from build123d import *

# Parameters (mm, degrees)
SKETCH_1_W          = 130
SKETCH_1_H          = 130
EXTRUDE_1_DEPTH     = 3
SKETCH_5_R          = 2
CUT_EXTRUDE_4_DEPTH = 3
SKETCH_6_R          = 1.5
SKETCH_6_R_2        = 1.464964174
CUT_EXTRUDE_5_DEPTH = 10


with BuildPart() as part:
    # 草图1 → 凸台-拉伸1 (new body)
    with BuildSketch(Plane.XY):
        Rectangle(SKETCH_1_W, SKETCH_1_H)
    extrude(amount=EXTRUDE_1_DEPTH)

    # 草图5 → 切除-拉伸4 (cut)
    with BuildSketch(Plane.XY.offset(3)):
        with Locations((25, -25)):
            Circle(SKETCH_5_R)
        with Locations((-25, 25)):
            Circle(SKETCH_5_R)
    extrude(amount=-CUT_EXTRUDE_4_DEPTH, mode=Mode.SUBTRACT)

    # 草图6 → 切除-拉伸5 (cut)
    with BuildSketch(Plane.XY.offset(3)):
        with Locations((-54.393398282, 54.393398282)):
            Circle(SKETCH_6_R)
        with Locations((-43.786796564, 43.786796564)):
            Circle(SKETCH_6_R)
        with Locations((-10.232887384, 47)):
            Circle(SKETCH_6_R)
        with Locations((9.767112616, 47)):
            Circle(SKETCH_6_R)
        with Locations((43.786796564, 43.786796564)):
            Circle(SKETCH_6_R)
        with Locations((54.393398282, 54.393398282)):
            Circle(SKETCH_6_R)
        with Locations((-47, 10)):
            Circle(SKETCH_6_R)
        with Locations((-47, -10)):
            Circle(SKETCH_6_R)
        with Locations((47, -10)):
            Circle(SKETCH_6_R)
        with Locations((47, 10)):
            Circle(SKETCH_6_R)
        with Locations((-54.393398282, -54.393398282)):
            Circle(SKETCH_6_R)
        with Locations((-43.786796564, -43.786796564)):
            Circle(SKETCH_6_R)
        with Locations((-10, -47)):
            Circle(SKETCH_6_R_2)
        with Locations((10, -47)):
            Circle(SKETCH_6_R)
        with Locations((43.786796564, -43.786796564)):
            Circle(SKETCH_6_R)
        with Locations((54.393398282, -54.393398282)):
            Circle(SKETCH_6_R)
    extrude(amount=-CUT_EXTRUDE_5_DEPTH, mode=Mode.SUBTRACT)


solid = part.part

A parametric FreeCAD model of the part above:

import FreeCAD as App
import Part
import Sketcher

doc = App.newDocument("Part")
params = doc.addObject("Spreadsheet::Sheet", "Params")
for row, (alias, value) in enumerate([
    ("sketch1_width", "130 mm"),
    ("pad1_length", "3 mm"),
    ("sketch2_diameter", "4 mm"),
    ("pocket1_length", "3 mm"),
    ("sketch3_diameter", "3 mm"),
    ("pocket2_length", "10 mm"),
], start=1):
    params.set(f"A{row}", alias)
    params.set(f"B{row}", "=" + value)
    params.setAlias(f"B{row}", alias)

body = doc.addObject("PartDesign::Body", "Body")

# Sketch on XY plane
sketch1 = body.newObject("Sketcher::SketchObject", "Sketch")
sketch1.AttachmentSupport = (doc.getObject("XY_Plane"), [""])
sketch1.MapMode = "FlatFace"
sketch1.addGeometry([
    Part.LineSegment(App.Vector(-65, 65, 0), App.Vector(-65, -65, 0)),
    Part.LineSegment(App.Vector(-65, -65, 0), App.Vector(65, -65, 0)),
    Part.LineSegment(App.Vector(65, -65, 0), App.Vector(65, 65, 0)),
    Part.LineSegment(App.Vector(65, 65, 0), App.Vector(-65, 65, 0)),
], False)
sketch1.addConstraint([
    Sketcher.Constraint("Coincident", 0, 2, 1, 1),
    Sketcher.Constraint("Coincident", 1, 2, 2, 1),
    Sketcher.Constraint("Coincident", 2, 2, 3, 1),
    Sketcher.Constraint("Coincident", 3, 2, 0, 1),
    Sketcher.Constraint("Vertical", 0),
    Sketcher.Constraint("Horizontal", 1),
    Sketcher.Constraint("Vertical", 2),
    Sketcher.Constraint("Horizontal", 3),
    Sketcher.Constraint("Symmetric", 0, 2, 2, 2, -1, 1),
    Sketcher.Constraint("Equal", 3, 0),
    Sketcher.Constraint("DistanceX", 1, 1, 1, 2, 130.0),
])
sketch1.setExpression("Constraints[10]", "Params.sketch1_width")
pad1 = body.newObject("PartDesign::Pad", "Pad")
pad1.Profile = sketch1
pad1.setExpression("Length", "Params.pad1_length")

# Sketch on XY plane
sketch2 = body.newObject("Sketcher::SketchObject", "Sketch001")
sketch2.AttachmentSupport = (doc.getObject("XY_Plane"), [""])
sketch2.MapMode = "FlatFace"
sketch2.AttachmentOffset = App.Placement(App.Vector(0, 0, 3), App.Rotation())
sketch2.addGeometry([
    Part.Circle(App.Vector(25, -25, 0), App.Vector(0, 0, 1), 2),
    Part.Circle(App.Vector(-25, 25, 0), App.Vector(0, 0, 1), 2),
], False)
sketch2.addConstraint([
    Sketcher.Constraint("Equal", 0, 1),
    Sketcher.Constraint("Symmetric", 0, 3, 1, 3, -1, 1),
    Sketcher.Constraint("Diameter", 0, 4.0),
    Sketcher.Constraint("DistanceX", -1, 1, 0, 3, 25.0),
    Sketcher.Constraint("DistanceY", 0, 3, -1, 1, 25.0),
])
sketch2.setExpression("Constraints[2]", "Params.sketch2_diameter")
pocket1 = body.newObject("PartDesign::Pocket", "Pocket")
pocket1.Profile = sketch2
pocket1.setExpression("Length", "Params.pocket1_length")

# Sketch on XY plane
sketch3 = body.newObject("Sketcher::SketchObject", "Sketch002")
sketch3.AttachmentSupport = (doc.getObject("XY_Plane"), [""])
sketch3.MapMode = "FlatFace"
sketch3.AttachmentOffset = App.Placement(App.Vector(0, 0, 3), App.Rotation())
sketch3.addGeometry([
    Part.Circle(App.Vector(-54.4, 54.4, 0), App.Vector(0, 0, 1), 1.5),  # 0
    Part.Circle(App.Vector(-43.8, 43.8, 0), App.Vector(0, 0, 1), 1.5),  # 1
    Part.Circle(App.Vector(-10.2, 47, 0), App.Vector(0, 0, 1), 1.5),  # 2
    Part.Circle(App.Vector(9.8, 47, 0), App.Vector(0, 0, 1), 1.5),  # 3
    Part.Circle(App.Vector(43.8, 43.8, 0), App.Vector(0, 0, 1), 1.5),  # 4
    Part.Circle(App.Vector(54.4, 54.4, 0), App.Vector(0, 0, 1), 1.5),  # 5
    Part.Circle(App.Vector(-47, 10, 0), App.Vector(0, 0, 1), 1.5),  # 6
    Part.Circle(App.Vector(-47, -10, 0), App.Vector(0, 0, 1), 1.5),  # 7
    Part.Circle(App.Vector(47, -10, 0), App.Vector(0, 0, 1), 1.5),  # 8
    Part.Circle(App.Vector(47, 10, 0), App.Vector(0, 0, 1), 1.5),  # 9
    Part.Circle(App.Vector(-54.4, -54.4, 0), App.Vector(0, 0, 1), 1.5),  # 10
    Part.Circle(App.Vector(-43.8, -43.8, 0), App.Vector(0, 0, 1), 1.5),  # 11
    Part.Circle(App.Vector(-10, -47, 0), App.Vector(0, 0, 1), 1.5),  # 12
    Part.Circle(App.Vector(10, -47, 0), App.Vector(0, 0, 1), 1.5),  # 13
    Part.Circle(App.Vector(43.8, -43.8, 0), App.Vector(0, 0, 1), 1.5),  # 14
    Part.Circle(App.Vector(54.4, -54.4, 0), App.Vector(0, 0, 1), 1.5),  # 15
], False)
sketch3.addConstraint([
    Sketcher.Constraint("Equal", 0, 1),
    Sketcher.Constraint("Equal", 1, 2),
    Sketcher.Constraint("Equal", 2, 3),
    Sketcher.Constraint("Equal", 3, 4),
    Sketcher.Constraint("Equal", 4, 5),
    Sketcher.Constraint("Equal", 5, 6),
    Sketcher.Constraint("Equal", 6, 7),
    Sketcher.Constraint("Equal", 7, 8),
    Sketcher.Constraint("Equal", 8, 9),
    Sketcher.Constraint("Equal", 9, 10),
    Sketcher.Constraint("Equal", 10, 11),
    Sketcher.Constraint("Equal", 11, 13),
    Sketcher.Constraint("Equal", 13, 14),
    Sketcher.Constraint("Equal", 14, 15),
    Sketcher.Constraint("Symmetric", 6, 3, 8, 3, -1, 1),
    Sketcher.Constraint("Symmetric", 7, 3, 9, 3, -1, 1),
    Sketcher.Constraint("Symmetric", 5, 3, 10, 3, -1, 1),
    Sketcher.Constraint("Symmetric", 4, 3, 11, 3, -1, 1),
    Sketcher.Constraint("Symmetric", 1, 3, 14, 3, -1, 1),
    Sketcher.Constraint("Symmetric", 0, 3, 15, 3, -1, 1),
    Sketcher.Constraint("Symmetric", 1, 3, 4, 3, -2),
    Sketcher.Constraint("Symmetric", 0, 3, 5, 3, -2),
    Sketcher.Constraint("Symmetric", 7, 3, 8, 3, -2),
    Sketcher.Constraint("Symmetric", 12, 3, 13, 3, -2),
    Sketcher.Constraint("Horizontal", 2, 3, 3, 3),
    Sketcher.Constraint("Diameter", 0, 3.0),
    Sketcher.Constraint("DistanceY", -1, 1, 2, 3, 47.0),
    Sketcher.Constraint("DistanceX", 6, 3, -1, 1, 47.0),
    Sketcher.Constraint("DistanceY", -1, 1, 6, 3, 10.0),
    Sketcher.Constraint("DistanceX", 12, 3, -1, 1, 10.0),
    Sketcher.Constraint("DistanceY", 12, 3, -1, 1, 47.0),
    Sketcher.Constraint("DistanceX", 2, 3, 3, 3, 20.0),
    Sketcher.Constraint("Diameter", 12, 2.929928),
    Sketcher.Constraint("DistanceX", 0, 3, -1, 1, 54.393398),
    Sketcher.Constraint("DistanceY", -1, 1, 0, 3, 54.393398),
    Sketcher.Constraint("DistanceX", 0, 3, 1, 3, 10.606602),
    Sketcher.Constraint("DistanceY", 1, 3, 0, 3, 10.606602),
    Sketcher.Constraint("DistanceX", 1, 3, 2, 3, 33.553909),
])
sketch3.setExpression("Constraints[25]", "Params.sketch3_diameter")
pocket2 = body.newObject("PartDesign::Pocket", "Pocket001")
pocket2.Profile = sketch3
pocket2.setExpression("Length", "Params.pocket2_length")

doc.recompute()
